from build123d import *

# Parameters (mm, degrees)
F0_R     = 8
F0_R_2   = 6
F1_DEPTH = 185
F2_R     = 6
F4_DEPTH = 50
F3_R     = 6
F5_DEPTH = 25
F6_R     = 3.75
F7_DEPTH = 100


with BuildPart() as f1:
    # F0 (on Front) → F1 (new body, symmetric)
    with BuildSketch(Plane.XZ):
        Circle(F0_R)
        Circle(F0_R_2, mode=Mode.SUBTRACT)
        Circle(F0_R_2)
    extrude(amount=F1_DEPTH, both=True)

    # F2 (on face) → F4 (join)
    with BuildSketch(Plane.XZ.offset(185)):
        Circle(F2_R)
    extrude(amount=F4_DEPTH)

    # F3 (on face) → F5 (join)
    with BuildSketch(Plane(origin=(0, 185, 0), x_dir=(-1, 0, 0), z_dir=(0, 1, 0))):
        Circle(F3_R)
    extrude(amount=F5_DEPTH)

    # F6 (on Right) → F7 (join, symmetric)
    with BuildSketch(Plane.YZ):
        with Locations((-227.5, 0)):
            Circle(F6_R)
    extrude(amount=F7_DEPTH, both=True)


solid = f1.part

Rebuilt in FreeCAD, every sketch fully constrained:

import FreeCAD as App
import Part
import Sketcher

V = App.Vector
Q = App.Units.Quantity

doc = App.newDocument("Part")
body = doc.addObject("PartDesign::Body", "Body")

sketch1 = body.newObject("Sketcher::SketchObject", "Sketch")
sketch1.AttachmentSupport = (doc.getObject("XZ_Plane"), [""])
sketch1.MapMode = "FlatFace"
sketch1.addGeometry(Part.Circle(V(0, 0, 0), V(0, 0, 1), 8), False)
sketch1.addConstraint([
    Sketcher.Constraint("Coincident", 0, 3, -1, 1),
    Sketcher.Constraint("Diameter", 0, Q("16 mm")),
])
pad1 = body.newObject("PartDesign::Pad", "Pad")
pad1.Profile = sketch1
pad1.Length = 370
pad1.Midplane = True

sketch2 = body.newObject("Sketcher::SketchObject", "Sketch001")
sketch2.AttachmentSupport = (doc.getObject("XZ_Plane"), [""])
sketch2.MapMode = "FlatFace"
sketch2.AttachmentOffset = App.Placement(V(0, 0, 185), App.Rotation())
sketch2.addGeometry(Part.Circle(V(0, 0, 0), V(0, 0, 1), 6), False)
sketch2.addConstraint([
    Sketcher.Constraint("Coincident", 0, 3, -1, 1),
    Sketcher.Constraint("Diameter", 0, Q("12 mm")),
])
pad2 = body.newObject("PartDesign::Pad", "Pad001")
pad2.Profile = sketch2
pad2.Length = 50

sketch3 = body.newObject("Sketcher::SketchObject", "Sketch002")
sketch3.AttachmentSupport = (doc.getObject("XZ_Plane"), [""])
sketch3.MapMode = "FlatFace"
sketch3.AttachmentOffset = App.Placement(V(0, 0, -185), App.Rotation())
sketch3.addGeometry(Part.Circle(V(0, 0, 0), V(0, 0, 1), 6), False)
sketch3.addConstraint([
    Sketcher.Constraint("Coincident", 0, 3, -1, 1),
    Sketcher.Constraint("Diameter", 0, Q("12 mm")),
])
pad3 = body.newObject("PartDesign::Pad", "Pad002")
pad3.Profile = sketch3
pad3.Length = 25
pad3.Reversed = True

sketch4 = body.newObject("Sketcher::SketchObject", "Sketch003")
sketch4.AttachmentSupport = (doc.getObject("YZ_Plane"), [""])
sketch4.MapMode = "FlatFace"
sketch4.addGeometry(Part.Circle(V(-227.5, 0, 0), V(0, 0, 1), 3.8), False)
sketch4.addConstraint([
    Sketcher.Constraint("PointOnObject", 0, 3, -1),
    Sketcher.Constraint("Diameter", 0, Q("7.5 mm")),
    Sketcher.Constraint("DistanceX", 0, 3, -1, 1, Q("227.5 mm")),
])
pad4 = body.newObject("PartDesign::Pad", "Pad003")
pad4.Profile = sketch4
pad4.Length = 200
pad4.Midplane = True

doc.recompute()
